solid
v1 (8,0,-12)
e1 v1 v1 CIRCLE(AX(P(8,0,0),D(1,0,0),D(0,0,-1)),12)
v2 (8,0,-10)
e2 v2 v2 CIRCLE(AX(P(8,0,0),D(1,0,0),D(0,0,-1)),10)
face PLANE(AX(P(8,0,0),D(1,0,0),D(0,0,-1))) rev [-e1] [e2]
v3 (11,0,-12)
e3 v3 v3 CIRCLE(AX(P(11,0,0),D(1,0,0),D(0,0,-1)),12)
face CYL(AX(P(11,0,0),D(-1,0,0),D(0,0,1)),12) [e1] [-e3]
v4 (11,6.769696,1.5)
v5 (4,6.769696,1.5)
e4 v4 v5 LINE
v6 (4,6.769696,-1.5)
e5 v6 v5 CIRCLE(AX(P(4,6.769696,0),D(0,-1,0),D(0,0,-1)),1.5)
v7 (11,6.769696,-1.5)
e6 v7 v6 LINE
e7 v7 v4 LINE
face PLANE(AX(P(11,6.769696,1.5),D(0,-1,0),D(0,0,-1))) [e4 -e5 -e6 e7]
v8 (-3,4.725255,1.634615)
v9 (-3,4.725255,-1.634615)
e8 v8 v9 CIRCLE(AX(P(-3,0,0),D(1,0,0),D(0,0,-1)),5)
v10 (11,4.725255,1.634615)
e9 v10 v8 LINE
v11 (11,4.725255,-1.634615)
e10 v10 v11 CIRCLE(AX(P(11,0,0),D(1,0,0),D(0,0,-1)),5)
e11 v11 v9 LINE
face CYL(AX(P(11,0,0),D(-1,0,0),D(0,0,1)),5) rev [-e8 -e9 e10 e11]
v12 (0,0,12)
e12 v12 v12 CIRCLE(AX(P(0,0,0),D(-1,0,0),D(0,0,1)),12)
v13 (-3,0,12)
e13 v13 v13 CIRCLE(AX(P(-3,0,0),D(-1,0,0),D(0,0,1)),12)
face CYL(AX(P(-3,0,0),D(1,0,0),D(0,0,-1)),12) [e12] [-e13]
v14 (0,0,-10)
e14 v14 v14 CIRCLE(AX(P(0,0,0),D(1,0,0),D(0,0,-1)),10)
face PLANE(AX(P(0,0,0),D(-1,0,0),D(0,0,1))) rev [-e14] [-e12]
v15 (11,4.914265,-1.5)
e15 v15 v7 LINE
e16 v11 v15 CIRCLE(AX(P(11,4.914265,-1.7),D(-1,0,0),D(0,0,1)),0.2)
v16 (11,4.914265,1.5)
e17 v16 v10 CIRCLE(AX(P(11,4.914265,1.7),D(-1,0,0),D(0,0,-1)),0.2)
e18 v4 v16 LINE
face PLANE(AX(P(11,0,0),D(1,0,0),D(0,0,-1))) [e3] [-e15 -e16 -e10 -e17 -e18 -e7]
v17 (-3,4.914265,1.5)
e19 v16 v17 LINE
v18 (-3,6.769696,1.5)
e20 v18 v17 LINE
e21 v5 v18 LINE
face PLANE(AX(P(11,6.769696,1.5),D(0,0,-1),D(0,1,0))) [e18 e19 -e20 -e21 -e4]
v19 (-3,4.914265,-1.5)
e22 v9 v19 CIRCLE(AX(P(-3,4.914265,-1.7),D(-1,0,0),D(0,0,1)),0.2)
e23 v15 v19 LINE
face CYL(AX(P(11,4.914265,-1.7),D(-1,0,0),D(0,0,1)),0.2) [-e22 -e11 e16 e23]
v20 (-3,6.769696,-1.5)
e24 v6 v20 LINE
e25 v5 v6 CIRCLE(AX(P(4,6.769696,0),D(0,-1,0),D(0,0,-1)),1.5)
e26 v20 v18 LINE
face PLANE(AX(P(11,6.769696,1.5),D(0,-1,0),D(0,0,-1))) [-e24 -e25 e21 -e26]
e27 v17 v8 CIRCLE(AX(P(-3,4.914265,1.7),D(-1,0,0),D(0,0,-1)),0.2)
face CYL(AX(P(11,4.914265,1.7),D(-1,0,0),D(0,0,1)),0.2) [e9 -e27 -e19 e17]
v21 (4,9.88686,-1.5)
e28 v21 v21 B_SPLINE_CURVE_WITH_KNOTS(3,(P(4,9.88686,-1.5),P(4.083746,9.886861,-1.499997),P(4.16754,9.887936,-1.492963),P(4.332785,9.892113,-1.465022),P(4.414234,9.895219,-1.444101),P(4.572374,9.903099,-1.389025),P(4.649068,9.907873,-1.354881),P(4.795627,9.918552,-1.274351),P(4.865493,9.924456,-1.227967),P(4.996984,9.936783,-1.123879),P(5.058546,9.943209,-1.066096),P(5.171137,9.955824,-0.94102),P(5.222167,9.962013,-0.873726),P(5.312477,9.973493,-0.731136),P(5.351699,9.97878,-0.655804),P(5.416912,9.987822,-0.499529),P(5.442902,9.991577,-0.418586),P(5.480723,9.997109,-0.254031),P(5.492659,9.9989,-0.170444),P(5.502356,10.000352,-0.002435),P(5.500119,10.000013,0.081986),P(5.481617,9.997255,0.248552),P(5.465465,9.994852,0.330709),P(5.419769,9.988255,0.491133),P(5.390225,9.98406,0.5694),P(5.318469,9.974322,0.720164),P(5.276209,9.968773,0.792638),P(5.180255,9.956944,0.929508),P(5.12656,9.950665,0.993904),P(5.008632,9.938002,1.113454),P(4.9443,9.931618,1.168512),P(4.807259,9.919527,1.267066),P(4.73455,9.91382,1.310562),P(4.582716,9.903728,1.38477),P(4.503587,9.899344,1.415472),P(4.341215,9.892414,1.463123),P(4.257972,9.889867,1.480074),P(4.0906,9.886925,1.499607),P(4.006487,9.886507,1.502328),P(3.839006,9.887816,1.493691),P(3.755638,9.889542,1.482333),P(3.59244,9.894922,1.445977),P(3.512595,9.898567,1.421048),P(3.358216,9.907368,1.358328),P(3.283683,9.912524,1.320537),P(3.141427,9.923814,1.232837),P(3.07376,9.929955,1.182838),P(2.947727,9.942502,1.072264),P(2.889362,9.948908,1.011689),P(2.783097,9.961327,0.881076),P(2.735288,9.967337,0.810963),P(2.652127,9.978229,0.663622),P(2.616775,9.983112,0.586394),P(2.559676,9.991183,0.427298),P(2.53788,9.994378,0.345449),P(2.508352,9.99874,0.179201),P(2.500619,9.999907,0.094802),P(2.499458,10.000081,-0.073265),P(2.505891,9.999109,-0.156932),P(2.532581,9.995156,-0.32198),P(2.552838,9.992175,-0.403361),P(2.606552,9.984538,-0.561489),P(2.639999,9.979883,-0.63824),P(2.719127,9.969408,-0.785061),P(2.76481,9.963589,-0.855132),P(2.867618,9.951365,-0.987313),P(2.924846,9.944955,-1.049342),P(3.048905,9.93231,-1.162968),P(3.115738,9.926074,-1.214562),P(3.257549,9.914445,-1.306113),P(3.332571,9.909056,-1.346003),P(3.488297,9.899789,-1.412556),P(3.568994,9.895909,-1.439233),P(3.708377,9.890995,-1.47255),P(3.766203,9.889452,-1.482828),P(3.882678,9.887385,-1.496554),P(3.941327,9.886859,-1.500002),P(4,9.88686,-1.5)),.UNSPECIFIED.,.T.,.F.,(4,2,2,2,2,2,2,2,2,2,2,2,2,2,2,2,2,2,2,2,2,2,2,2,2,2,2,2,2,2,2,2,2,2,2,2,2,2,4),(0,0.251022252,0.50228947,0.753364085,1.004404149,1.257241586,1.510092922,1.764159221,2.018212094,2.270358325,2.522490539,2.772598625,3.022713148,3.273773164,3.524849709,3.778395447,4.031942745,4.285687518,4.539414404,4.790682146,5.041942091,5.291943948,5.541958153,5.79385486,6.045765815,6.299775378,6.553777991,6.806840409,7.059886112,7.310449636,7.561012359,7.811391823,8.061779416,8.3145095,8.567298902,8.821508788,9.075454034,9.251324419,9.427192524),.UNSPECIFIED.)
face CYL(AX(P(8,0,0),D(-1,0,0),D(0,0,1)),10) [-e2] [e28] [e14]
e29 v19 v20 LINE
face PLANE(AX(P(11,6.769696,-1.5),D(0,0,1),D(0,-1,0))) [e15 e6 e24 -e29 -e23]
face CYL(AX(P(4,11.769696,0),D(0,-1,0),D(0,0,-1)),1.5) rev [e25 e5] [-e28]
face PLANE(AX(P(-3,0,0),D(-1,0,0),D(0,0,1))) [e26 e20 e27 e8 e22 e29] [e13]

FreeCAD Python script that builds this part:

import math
import FreeCAD as App
import Part
import Sketcher

V = App.Vector

doc = App.newDocument("Part")
body = doc.addObject("PartDesign::Body", "Body")

# Sketch on YZ plane
sketch1 = body.newObject("Sketcher::SketchObject", "Sketch")
sketch1.AttachmentSupport = (doc.getObject("YZ_Plane"), [""])
sketch1.MapMode = "FlatFace"
sketch1.addGeometry(Part.Circle(V(0, 0, 0), V(0, 0, 1), 10), False)
sketch1.addConstraint([
    Sketcher.Constraint("Coincident", 0, 3, -1, 1),
    Sketcher.Constraint("Diameter", 0, 20.0),
])
pad1 = body.newObject("PartDesign::Pad", "Pad")
pad1.Profile = sketch1
pad1.Length = 8

# Sketch on YZ plane
sketch2 = body.newObject("Sketcher::SketchObject", "Sketch001")
sketch2.AttachmentSupport = (doc.getObject("YZ_Plane"), [""])
sketch2.MapMode = "FlatFace"
sketch2.AttachmentOffset = App.Placement(V(0, 0, 8), App.Rotation())
sketch2.addGeometry(Part.Circle(V(0, 0, 0), V(0, 0, 1), 12), False)
sketch2.addConstraint([
    Sketcher.Constraint("Coincident", 0, 3, -1, 1),
    Sketcher.Constraint("Diameter", 0, 24.0),
])
pad2 = body.newObject("PartDesign::Pad", "Pad001")
pad2.Profile = sketch2
pad2.Length = 3

# Sketch on YZ plane
sketch3 = body.newObject("Sketcher::SketchObject", "Sketch002")
sketch3.AttachmentSupport = (doc.getObject("YZ_Plane"), [""])
sketch3.MapMode = "FlatFace"
sketch3.addGeometry(Part.Circle(V(0, 0, 0), V(0, 0, 1), 12), False)
sketch3.addConstraint([
    Sketcher.Constraint("Coincident", 0, 3, -1, 1),
    Sketcher.Constraint("Diameter", 0, 24.0),
])
pad3 = body.newObject("PartDesign::Pad", "Pad002")
pad3.Profile = sketch3
pad3.Length = 3
pad3.Reversed = True

# Sketch on YZ plane
sketch4 = body.newObject("Sketcher::SketchObject", "Sketch003")
sketch4.AttachmentSupport = (doc.getObject("YZ_Plane"), [""])
sketch4.MapMode = "FlatFace"
sketch4.AttachmentOffset = App.Placement(V(0, 0, 8), App.Rotation())
sketch4.addGeometry([
    Part.LineSegment(V(6.77, -1.5, 0), V(6.77, 1.5, 0)),  # 0
    Part.LineSegment(V(6.77, 1.5, 0), V(4.91, 1.5, 0)),  # 1
    Part.ArcOfCircle(Part.Circle(V(4.91, 1.7, 0), V(0, 0, 1), 0.2), math.radians(-161), math.radians(-90)),  # 2
    Part.ArcOfCircle(Part.Circle(V(0, 0, 0), V(0, 0, 1), 5), math.radians(19), math.radians(341)),  # 3
    Part.ArcOfCircle(Part.Circle(V(4.91, -1.7, 0), V(0, 0, 1), 0.2), math.radians(90), math.radians(161)),  # 4
    Part.LineSegment(V(4.91, -1.5, 0), V(6.77, -1.5, 0)),  # 5
], False)
sketch4.addConstraint([
    Sketcher.Constraint("Coincident", 0, 2, 1, 1),
    Sketcher.Constraint("Tangent", 1, 2, 2, 2),
    Sketcher.Constraint("Tangent", 2, 1, 3, 1),
    Sketcher.Constraint("Tangent", 3, 2, 4, 2),
    Sketcher.Constraint("Tangent", 4, 1, 5, 1),
    Sketcher.Constraint("Coincident", 5, 2, 0, 1),
    Sketcher.Constraint("Vertical", 0),
    Sketcher.Constraint("Horizontal", 1),
    Sketcher.Constraint("Horizontal", 5),
    Sketcher.Constraint("Coincident", 3, 3, -1, 1),
    Sketcher.Constraint("Equal", 2, 4),
    Sketcher.Constraint("Vertical", 2, 3, 4, 3),
    Sketcher.Constraint("Radius", 3, 5.0),
    Sketcher.Constraint("Radius", 2, 0.2),
    Sketcher.Constraint("DistanceY", 0, 1, 0, 2, 3.0),
    Sketcher.Constraint("DistanceX", 1, 2, 1, 1, 1.855431),
])
pocket1 = body.newObject("PartDesign::Pocket", "Pocket")
pocket1.Profile = sketch4
pocket1.Type = "ThroughAll"
pocket1.Midplane = True

# Sketch on XZ plane
sketch5 = body.newObject("Sketcher::SketchObject", "Sketch004")
sketch5.AttachmentSupport = (doc.getObject("XZ_Plane"), [""])
sketch5.MapMode = "FlatFace"
sketch5.AttachmentOffset = App.Placement(V(0, 0, -6.769696), App.Rotation())
sketch5.addGeometry(Part.Circle(V(4, 0, 0), V(0, 0, 1), 1.5), False)
sketch5.addConstraint([
    Sketcher.Constraint("PointOnObject", 0, 3, -1),
    Sketcher.Constraint("Diameter", 0, 3.0),
    Sketcher.Constraint("DistanceX", -1, 1, 0, 3, 4.0),
])
pocket2 = body.newObject("PartDesign::Pocket", "Pocket001")
pocket2.Profile = sketch5
pocket2.Length = 5

doc.recompute()
